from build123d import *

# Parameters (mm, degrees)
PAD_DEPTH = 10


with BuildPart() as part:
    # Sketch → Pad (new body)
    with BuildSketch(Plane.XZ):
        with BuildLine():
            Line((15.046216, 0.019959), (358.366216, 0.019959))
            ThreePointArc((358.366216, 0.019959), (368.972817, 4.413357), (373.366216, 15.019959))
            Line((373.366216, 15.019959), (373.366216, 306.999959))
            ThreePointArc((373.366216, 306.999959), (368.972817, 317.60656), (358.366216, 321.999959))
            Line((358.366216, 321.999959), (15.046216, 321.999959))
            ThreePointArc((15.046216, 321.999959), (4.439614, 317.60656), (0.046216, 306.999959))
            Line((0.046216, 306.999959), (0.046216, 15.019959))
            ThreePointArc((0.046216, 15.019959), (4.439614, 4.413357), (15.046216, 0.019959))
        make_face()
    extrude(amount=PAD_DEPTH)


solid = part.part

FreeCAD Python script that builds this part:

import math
import FreeCAD as App
import Part
import Sketcher
Q = App.Units.Quantity

doc = App.newDocument("Part")
params = doc.addObject("Spreadsheet::Sheet", "Params")
for row, (alias, value) in enumerate([
    ("sketch1_radius", "15.000001 mm"),
    ("sketch1_width", "343.32 mm"),
    ("sketch1_height", "291.98 mm"),
    ("pad1_length", "10 mm"),
], start=1):
    params.set(f"A{row}", alias)
    params.set(f"B{row}", "=" + value)
    params.setAlias(f"B{row}", alias)

body = doc.addObject("PartDesign::Body", "Body")

sketch1 = doc.addObject("Sketcher::SketchObject", "Sketch")
body.addObject(sketch1)
sketch1.AttachmentSupport = (doc.XZ_Plane, [""])
sketch1.MapMode = "FlatFace"
sketch1.addGeometry([
    Part.LineSegment(App.Vector(15, 0, 0), App.Vector(358, 0, 0)),
    Part.ArcOfCircle(Part.Circle(App.Vector(358, 15, 0), App.Vector(0, 0, 1), 15), math.radians(-90), math.radians(0)),
    Part.LineSegment(App.Vector(373, 15, 0), App.Vector(373, 307, 0)),
    Part.ArcOfCircle(Part.Circle(App.Vector(358, 307, 0), App.Vector(0, 0, 1), 15), math.radians(0), math.radians(90)),
    Part.LineSegment(App.Vector(358, 322, 0), App.Vector(15, 322, 0)),
    Part.ArcOfCircle(Part.Circle(App.Vector(15, 307, 0), App.Vector(0, 0, 1), 15), math.radians(90), math.radians(180)),
    Part.LineSegment(App.Vector(0, 307, 0), App.Vector(0, 15, 0)),
    Part.ArcOfCircle(Part.Circle(App.Vector(15, 15, 0), App.Vector(0, 0, 1), 15), math.radians(180), math.radians(270)),
], False)
sketch1.addConstraint([
    Sketcher.Constraint("Tangent", 0, 2, 1, 1),
    Sketcher.Constraint("Tangent", 1, 2, 2, 1),
    Sketcher.Constraint("Tangent", 2, 2, 3, 1),
    Sketcher.Constraint("Tangent", 3, 2, 4, 1),
    Sketcher.Constraint("Tangent", 4, 2, 5, 1),
    Sketcher.Constraint("Tangent", 5, 2, 6, 1),
    Sketcher.Constraint("Tangent", 6, 2, 7, 1),
    Sketcher.Constraint("Tangent", 7, 2, 0, 1),
    Sketcher.Constraint("Horizontal", 0),
    Sketcher.Constraint("Vertical", 2),
    Sketcher.Constraint("Horizontal", 4),
    Sketcher.Constraint("Vertical", 6),
    Sketcher.Constraint("Equal", 1, 3),
    Sketcher.Constraint("Equal", 3, 5),
    Sketcher.Constraint("Equal", 5, 7),
    Sketcher.Constraint("Radius", 1, Q("15.000001 mm")),
    Sketcher.Constraint("DistanceX", 0, 1, 0, 2, Q("343.32 mm")),
    Sketcher.Constraint("DistanceY", 2, 1, 2, 2, Q("291.98 mm")),
    Sketcher.Constraint("DistanceY", -1, 1, 1, 3, Q("15.01996 mm")),
    Sketcher.Constraint("DistanceX", -1, 1, 1, 3, Q("358.366215 mm")),
])
sketch1.setExpression("Constraints[15]", "Params.sketch1_radius")
sketch1.setExpression("Constraints[16]", "Params.sketch1_width")
sketch1.setExpression("Constraints[17]", "Params.sketch1_height")
pad1 = doc.addObject("PartDesign::Pad", "Pad")
body.addObject(pad1)
pad1.Profile = sketch1
pad1.setExpression("Length", "Params.pad1_length")

doc.recompute()
